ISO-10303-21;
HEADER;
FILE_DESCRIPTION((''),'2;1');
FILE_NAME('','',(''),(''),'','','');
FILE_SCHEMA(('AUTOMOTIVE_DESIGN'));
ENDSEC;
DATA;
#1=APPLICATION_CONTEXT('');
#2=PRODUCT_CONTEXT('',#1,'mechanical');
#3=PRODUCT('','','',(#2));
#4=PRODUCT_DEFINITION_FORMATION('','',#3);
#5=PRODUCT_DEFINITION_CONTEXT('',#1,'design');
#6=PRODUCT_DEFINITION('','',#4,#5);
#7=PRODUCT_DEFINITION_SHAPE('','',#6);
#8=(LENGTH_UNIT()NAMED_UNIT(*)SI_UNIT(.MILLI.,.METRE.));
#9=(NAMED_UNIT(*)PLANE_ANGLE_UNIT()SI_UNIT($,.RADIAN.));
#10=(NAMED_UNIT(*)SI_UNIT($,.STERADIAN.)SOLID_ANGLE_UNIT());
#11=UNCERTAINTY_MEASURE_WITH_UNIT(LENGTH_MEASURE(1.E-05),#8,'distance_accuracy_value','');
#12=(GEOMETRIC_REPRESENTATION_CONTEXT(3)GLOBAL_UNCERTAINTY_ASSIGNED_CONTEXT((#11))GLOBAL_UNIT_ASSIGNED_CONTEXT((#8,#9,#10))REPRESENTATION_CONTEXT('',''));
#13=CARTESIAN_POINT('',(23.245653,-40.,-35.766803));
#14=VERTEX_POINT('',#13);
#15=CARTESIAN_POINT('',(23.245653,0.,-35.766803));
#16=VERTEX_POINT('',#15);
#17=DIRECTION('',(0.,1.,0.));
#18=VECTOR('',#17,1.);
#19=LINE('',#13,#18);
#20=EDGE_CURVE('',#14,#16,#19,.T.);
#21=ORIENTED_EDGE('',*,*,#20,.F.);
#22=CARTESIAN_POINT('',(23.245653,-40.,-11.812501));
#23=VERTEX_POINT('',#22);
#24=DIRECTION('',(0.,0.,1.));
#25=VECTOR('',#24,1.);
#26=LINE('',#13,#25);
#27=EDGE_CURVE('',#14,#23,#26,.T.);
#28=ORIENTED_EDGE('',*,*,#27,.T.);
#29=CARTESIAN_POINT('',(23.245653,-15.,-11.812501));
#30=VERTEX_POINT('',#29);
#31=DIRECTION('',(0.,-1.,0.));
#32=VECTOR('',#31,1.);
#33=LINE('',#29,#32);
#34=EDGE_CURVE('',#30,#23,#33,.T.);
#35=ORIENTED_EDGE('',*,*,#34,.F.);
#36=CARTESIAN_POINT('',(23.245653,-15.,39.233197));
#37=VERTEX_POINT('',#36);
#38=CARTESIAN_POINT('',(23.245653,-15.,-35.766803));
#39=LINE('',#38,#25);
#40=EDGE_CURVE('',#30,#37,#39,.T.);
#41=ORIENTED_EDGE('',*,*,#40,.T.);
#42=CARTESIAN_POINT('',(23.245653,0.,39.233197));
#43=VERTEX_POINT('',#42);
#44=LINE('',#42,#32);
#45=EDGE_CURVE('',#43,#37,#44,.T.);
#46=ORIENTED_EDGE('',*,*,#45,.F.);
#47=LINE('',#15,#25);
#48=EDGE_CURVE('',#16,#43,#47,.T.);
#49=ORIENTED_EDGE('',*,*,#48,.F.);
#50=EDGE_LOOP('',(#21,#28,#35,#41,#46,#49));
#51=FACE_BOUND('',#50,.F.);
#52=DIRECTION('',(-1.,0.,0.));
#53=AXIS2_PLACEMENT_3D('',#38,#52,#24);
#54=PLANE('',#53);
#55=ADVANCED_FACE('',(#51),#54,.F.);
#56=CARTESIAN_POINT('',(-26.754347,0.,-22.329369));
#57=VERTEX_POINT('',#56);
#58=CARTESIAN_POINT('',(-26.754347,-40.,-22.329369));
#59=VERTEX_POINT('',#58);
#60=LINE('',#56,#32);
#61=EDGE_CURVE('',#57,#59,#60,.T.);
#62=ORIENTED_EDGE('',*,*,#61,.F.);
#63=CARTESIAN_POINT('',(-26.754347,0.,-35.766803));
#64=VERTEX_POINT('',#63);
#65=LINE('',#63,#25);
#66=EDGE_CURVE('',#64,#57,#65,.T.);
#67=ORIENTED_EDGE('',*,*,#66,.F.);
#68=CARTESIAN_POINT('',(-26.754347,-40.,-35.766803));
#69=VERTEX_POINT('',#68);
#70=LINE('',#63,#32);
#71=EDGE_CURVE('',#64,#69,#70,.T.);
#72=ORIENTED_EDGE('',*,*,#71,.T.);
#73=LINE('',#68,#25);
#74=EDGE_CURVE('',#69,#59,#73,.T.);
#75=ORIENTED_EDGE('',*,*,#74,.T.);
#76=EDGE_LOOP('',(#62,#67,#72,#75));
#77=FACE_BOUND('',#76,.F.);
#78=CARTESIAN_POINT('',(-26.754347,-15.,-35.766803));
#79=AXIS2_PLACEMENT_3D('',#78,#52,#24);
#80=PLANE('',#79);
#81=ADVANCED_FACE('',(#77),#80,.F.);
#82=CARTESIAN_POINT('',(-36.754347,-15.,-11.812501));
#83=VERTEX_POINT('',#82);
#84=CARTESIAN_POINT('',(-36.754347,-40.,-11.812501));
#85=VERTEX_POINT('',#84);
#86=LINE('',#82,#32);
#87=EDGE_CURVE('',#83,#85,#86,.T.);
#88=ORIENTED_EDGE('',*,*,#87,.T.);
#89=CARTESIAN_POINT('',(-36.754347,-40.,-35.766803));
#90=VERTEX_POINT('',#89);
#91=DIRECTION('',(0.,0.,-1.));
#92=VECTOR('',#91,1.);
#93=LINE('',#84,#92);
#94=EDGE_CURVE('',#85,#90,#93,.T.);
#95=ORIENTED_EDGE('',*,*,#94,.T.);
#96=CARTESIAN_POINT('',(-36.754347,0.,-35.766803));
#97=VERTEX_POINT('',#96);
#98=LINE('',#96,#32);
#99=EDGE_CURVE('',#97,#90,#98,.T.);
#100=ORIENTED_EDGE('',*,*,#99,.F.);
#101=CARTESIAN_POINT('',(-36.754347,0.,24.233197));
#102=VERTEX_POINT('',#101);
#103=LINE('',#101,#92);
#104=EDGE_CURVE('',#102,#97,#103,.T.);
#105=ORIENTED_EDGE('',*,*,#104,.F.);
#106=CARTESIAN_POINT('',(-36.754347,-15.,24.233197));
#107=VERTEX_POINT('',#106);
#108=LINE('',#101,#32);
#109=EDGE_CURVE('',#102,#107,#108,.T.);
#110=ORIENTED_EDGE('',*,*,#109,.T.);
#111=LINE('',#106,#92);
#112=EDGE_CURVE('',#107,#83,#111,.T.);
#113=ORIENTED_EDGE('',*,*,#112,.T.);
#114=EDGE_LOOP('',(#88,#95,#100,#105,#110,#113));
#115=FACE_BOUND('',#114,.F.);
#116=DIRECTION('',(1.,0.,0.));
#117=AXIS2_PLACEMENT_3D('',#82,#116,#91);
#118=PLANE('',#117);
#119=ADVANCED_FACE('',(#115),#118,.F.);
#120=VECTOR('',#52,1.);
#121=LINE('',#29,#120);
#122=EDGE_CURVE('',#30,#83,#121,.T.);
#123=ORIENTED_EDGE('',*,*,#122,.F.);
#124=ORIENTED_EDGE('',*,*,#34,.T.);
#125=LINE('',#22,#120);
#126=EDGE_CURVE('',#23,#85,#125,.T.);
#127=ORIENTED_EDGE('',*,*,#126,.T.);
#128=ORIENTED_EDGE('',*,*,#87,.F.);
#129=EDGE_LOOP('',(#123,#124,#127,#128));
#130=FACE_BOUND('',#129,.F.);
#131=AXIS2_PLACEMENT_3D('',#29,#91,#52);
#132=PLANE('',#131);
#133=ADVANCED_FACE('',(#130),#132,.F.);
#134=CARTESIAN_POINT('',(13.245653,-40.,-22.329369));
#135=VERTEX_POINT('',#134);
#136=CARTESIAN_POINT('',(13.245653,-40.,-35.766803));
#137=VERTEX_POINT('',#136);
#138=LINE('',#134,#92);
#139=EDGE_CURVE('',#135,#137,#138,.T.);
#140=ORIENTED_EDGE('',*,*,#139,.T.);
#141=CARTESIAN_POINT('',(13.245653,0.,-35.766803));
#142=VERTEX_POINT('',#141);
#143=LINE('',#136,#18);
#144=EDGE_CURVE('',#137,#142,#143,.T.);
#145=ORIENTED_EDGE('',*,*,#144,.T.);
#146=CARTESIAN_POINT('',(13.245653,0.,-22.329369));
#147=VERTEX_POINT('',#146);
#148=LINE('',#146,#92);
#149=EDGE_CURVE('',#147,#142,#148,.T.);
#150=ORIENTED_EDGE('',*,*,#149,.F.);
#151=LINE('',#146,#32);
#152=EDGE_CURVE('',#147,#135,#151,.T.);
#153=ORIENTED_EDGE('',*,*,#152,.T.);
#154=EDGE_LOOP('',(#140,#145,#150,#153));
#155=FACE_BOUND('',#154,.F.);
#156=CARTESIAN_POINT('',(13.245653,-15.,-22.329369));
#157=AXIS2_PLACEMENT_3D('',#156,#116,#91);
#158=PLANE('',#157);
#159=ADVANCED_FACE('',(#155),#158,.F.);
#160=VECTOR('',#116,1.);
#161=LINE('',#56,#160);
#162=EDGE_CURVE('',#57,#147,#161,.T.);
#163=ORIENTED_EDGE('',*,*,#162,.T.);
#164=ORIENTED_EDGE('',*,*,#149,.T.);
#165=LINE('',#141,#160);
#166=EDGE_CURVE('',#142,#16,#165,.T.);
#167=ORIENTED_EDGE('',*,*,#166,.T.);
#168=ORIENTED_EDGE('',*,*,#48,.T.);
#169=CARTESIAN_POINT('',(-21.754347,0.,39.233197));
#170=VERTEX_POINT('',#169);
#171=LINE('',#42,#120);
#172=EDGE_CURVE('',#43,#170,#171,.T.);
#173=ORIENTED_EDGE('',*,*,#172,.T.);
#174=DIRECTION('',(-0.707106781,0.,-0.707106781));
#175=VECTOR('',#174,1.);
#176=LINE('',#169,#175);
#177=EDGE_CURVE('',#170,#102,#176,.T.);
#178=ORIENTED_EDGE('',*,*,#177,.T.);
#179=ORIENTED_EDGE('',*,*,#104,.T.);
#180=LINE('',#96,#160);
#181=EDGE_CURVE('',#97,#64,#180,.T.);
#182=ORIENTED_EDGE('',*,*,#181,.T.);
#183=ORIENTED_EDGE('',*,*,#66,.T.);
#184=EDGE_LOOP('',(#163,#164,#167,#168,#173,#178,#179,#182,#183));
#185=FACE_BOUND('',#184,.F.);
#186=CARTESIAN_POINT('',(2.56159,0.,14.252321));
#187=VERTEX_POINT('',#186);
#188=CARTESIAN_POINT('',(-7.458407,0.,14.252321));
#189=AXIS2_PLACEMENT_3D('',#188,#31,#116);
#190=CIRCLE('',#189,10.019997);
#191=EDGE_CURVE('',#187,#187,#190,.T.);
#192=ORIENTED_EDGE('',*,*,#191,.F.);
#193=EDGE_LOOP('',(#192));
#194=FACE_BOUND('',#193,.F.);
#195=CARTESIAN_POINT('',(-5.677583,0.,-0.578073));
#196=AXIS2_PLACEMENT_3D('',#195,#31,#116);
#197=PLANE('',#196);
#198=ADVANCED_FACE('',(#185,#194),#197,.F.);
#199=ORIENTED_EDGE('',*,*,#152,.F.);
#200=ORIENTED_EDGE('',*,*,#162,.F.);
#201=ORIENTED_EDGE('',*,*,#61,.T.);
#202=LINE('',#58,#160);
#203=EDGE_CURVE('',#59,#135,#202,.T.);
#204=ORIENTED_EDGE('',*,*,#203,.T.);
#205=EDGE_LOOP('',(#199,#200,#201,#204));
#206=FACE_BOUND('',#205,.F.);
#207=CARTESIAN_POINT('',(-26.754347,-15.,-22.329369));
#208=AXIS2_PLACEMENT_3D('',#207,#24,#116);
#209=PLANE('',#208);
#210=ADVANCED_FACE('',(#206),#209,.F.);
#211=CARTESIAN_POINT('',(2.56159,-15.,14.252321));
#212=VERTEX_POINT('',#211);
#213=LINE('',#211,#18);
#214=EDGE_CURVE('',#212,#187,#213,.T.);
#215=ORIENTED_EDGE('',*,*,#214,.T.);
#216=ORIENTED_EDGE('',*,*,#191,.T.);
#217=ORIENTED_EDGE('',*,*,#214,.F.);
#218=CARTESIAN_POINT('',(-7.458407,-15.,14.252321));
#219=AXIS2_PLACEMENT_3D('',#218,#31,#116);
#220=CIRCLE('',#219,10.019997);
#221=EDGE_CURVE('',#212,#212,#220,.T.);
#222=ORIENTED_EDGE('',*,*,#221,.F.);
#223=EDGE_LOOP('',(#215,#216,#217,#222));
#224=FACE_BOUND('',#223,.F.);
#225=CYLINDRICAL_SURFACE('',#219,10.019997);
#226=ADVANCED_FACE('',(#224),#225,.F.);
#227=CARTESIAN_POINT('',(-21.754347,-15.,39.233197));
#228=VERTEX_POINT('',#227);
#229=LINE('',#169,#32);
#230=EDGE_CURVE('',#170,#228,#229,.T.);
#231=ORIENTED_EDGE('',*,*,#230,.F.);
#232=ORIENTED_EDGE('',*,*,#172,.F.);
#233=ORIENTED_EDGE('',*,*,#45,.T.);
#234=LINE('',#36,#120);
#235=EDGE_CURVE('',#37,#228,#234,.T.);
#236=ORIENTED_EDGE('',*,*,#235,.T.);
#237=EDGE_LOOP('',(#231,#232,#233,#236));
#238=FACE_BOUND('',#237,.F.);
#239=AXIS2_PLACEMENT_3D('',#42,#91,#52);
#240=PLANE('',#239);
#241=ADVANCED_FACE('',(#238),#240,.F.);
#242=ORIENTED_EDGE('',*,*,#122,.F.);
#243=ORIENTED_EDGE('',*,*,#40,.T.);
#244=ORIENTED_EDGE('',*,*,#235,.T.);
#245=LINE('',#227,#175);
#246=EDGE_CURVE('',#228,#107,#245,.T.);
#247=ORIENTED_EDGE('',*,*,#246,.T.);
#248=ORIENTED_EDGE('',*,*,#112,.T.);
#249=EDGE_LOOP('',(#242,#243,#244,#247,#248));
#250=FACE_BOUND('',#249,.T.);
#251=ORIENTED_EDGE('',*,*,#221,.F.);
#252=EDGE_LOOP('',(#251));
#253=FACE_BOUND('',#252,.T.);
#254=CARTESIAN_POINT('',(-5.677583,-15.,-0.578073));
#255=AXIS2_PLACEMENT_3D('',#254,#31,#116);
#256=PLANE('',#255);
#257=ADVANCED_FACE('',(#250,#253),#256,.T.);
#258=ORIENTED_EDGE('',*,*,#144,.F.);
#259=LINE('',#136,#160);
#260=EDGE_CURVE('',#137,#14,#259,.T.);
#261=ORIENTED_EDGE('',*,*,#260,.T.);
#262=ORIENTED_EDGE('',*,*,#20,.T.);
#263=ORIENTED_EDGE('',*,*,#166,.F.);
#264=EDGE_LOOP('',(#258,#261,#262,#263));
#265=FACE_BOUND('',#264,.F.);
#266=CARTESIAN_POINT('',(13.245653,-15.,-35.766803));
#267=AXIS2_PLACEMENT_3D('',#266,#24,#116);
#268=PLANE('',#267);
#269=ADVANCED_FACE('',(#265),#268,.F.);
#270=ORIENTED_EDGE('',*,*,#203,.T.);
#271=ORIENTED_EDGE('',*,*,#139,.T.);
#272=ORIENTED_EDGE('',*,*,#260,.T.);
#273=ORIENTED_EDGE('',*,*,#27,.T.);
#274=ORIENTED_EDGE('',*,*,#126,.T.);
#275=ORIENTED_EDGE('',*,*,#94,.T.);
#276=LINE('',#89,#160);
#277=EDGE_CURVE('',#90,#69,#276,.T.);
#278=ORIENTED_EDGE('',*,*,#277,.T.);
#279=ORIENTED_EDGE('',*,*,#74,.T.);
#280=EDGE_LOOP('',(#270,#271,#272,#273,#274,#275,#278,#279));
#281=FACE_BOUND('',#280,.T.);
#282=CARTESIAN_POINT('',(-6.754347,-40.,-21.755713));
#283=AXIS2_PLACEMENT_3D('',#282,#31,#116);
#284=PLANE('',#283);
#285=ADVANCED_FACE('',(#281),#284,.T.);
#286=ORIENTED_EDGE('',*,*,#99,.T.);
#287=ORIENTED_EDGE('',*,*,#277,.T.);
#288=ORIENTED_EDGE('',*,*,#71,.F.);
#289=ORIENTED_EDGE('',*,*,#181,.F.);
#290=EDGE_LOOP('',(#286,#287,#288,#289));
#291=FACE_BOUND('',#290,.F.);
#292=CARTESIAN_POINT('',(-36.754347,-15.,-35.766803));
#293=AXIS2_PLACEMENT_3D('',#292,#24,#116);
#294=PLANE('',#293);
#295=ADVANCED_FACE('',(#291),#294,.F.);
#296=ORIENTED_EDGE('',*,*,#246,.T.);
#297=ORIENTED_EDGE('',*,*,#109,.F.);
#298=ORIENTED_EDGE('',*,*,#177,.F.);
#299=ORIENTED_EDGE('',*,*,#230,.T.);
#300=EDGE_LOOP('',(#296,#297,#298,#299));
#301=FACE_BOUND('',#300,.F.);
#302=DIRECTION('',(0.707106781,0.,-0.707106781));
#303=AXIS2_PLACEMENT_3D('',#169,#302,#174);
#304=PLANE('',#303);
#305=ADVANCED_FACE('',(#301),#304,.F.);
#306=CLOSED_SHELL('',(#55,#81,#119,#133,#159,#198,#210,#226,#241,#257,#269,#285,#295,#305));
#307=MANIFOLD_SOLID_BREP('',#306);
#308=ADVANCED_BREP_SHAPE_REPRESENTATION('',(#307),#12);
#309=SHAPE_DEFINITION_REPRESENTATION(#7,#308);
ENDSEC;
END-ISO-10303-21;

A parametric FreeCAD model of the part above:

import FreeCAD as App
import Part
import Sketcher
from FreeCAD import Vector

doc = App.newDocument("Part")
body = doc.addObject("PartDesign::Body", "Body")

# Sketch on XZ plane
sketch1 = body.newObject("Sketcher::SketchObject", "Sketch")
sketch1.AttachmentSupport = (doc.getObject("XZ_Plane"), [""])
sketch1.MapMode = "FlatFace"
sketch1.addGeometry([
    Part.LineSegment(Vector(-22, 39, 0), Vector(-37, 24, 0)),  # 0
    Part.LineSegment(Vector(-37, 24, 0), Vector(-37, -36, 0)),  # 1
    Part.LineSegment(Vector(-37, -36, 0), Vector(-27, -36, 0)),  # 2
    Part.LineSegment(Vector(-27, -36, 0), Vector(-27, -22, 0)),  # 3
    Part.LineSegment(Vector(-27, -22, 0), Vector(13, -22, 0)),  # 4
    Part.LineSegment(Vector(13, -22, 0), Vector(13, -36, 0)),  # 5
    Part.LineSegment(Vector(13, -36, 0), Vector(23, -36, 0)),  # 6
    Part.LineSegment(Vector(23, -36, 0), Vector(23, 39, 0)),  # 7
    Part.LineSegment(Vector(23, 39, 0), Vector(-22, 39, 0)),  # 8
], False)
sketch1.addConstraint([
    Sketcher.Constraint("Coincident", 0, 2, 1, 1),
    Sketcher.Constraint("Coincident", 1, 2, 2, 1),
    Sketcher.Constraint("Coincident", 2, 2, 3, 1),
    Sketcher.Constraint("Coincident", 3, 2, 4, 1),
    Sketcher.Constraint("Coincident", 4, 2, 5, 1),
    Sketcher.Constraint("Coincident", 5, 2, 6, 1),
    Sketcher.Constraint("Coincident", 6, 2, 7, 1),
    Sketcher.Constraint("Coincident", 7, 2, 8, 1),
    Sketcher.Constraint("Coincident", 8, 2, 0, 1),
    Sketcher.Constraint("Vertical", 1),
    Sketcher.Constraint("Horizontal", 2),
    Sketcher.Constraint("Vertical", 3),
    Sketcher.Constraint("Horizontal", 4),
    Sketcher.Constraint("Vertical", 5),
    Sketcher.Constraint("Horizontal", 6),
    Sketcher.Constraint("Vertical", 7),
    Sketcher.Constraint("Horizontal", 8),
    Sketcher.Constraint("Horizontal", 2, 2, 5, 2),
    Sketcher.Constraint("Equal", 2, 6),
    Sketcher.Constraint("DistanceX", 2, 1, 2, 2, 10.0),
    Sketcher.Constraint("DistanceX", 4, 1, 4, 2, 40.0),
    Sketcher.Constraint("DistanceX", 8, 2, 8, 1, 45.0),
    Sketcher.Constraint("DistanceY", 1, 2, 1, 1, 60.0),
    Sketcher.Constraint("DistanceY", 7, 1, 7, 2, 75.0),
    Sketcher.Constraint("DistanceY", 3, 1, 3, 2, 13.437434),
    Sketcher.Constraint("DistanceY", 3, 2, -1, 1, 22.329369),
    Sketcher.Constraint("DistanceX", 0, 2, -1, 1, 36.754347),
])
pad1 = body.newObject("PartDesign::Pad", "Pad")
pad1.Profile = sketch1
pad1.Length = 15

# Sketch on XZ plane
sketch2 = body.newObject("Sketcher::SketchObject", "Sketch001")
sketch2.AttachmentSupport = (doc.getObject("XZ_Plane"), [""])
sketch2.MapMode = "FlatFace"
sketch2.AttachmentOffset = App.Placement(Vector(0, 0, 15), App.Rotation())
sketch2.addGeometry([
    Part.LineSegment(Vector(23, -12, 0), Vector(-37, -12, 0)),  # 0
    Part.LineSegment(Vector(-37, -12, 0), Vector(-37, -36, 0)),  # 1
    Part.LineSegment(Vector(-37, -36, 0), Vector(-27, -36, 0)),  # 2
    Part.LineSegment(Vector(-27, -36, 0), Vector(-27, -22, 0)),  # 3
    Part.LineSegment(Vector(-27, -22, 0), Vector(13, -22, 0)),  # 4
    Part.LineSegment(Vector(13, -22, 0), Vector(13, -36, 0)),  # 5
    Part.LineSegment(Vector(13, -36, 0), Vector(23, -36, 0)),  # 6
    Part.LineSegment(Vector(23, -36, 0), Vector(23, -12, 0)),  # 7
], False)
sketch2.addConstraint([
    Sketcher.Constraint("Coincident", 0, 2, 1, 1),
    Sketcher.Constraint("Coincident", 1, 2, 2, 1),
    Sketcher.Constraint("Coincident", 2, 2, 3, 1),
    Sketcher.Constraint("Coincident", 3, 2, 4, 1),
    Sketcher.Constraint("Coincident", 4, 2, 5, 1),
    Sketcher.Constraint("Coincident", 5, 2, 6, 1),
    Sketcher.Constraint("Coincident", 6, 2, 7, 1),
    Sketcher.Constraint("Coincident", 7, 2, 0, 1),
    Sketcher.Constraint("Horizontal", 0),
    Sketcher.Constraint("Vertical", 1),
    Sketcher.Constraint("Horizontal", 2),
    Sketcher.Constraint("Vertical", 3),
    Sketcher.Constraint("Horizontal", 4),
    Sketcher.Constraint("Vertical", 5),
    Sketcher.Constraint("Horizontal", 6),
    Sketcher.Constraint("Vertical", 7),
    Sketcher.Constraint("Horizontal", 2, 2, 5, 2),
    Sketcher.Constraint("Equal", 2, 6),
    Sketcher.Constraint("DistanceX", 0, 2, 0, 1, 60.0),
    Sketcher.Constraint("DistanceX", 2, 1, 2, 2, 10.0),
    Sketcher.Constraint("DistanceY", 0, 2, -1, 1, 11.812501),
    Sketcher.Constraint("DistanceY", 1, 2, 1, 1, 23.954302),
    Sketcher.Constraint("DistanceY", 3, 1, 3, 2, 13.437434),
    Sketcher.Constraint("DistanceX", 0, 2, -1, 1, 36.754347),
])
pad2 = body.newObject("PartDesign::Pad", "Pad001")
pad2.Profile = sketch2
pad2.Length = 25

# Sketch on XZ plane
sketch3 = body.newObject("Sketcher::SketchObject", "Sketch002")
sketch3.AttachmentSupport = (doc.getObject("XZ_Plane"), [""])
sketch3.MapMode = "FlatFace"
sketch3.AttachmentOffset = App.Placement(Vector(0, 0, 15), App.Rotation())
sketch3.addGeometry(Part.Circle(Vector(-7, 14, 0), Vector(0, 0, 1), 10), False)
sketch3.addConstraint([
    Sketcher.Constraint("Diameter", 0, 20.039994),
    Sketcher.Constraint("DistanceY", -1, 1, 0, 3, 14.252321),
    Sketcher.Constraint("DistanceX", 0, 3, -1, 1, 7.458407),
])
pocket1 = body.newObject("PartDesign::Pocket", "Pocket")
pocket1.Profile = sketch3
pocket1.Length = 25

doc.recompute()
